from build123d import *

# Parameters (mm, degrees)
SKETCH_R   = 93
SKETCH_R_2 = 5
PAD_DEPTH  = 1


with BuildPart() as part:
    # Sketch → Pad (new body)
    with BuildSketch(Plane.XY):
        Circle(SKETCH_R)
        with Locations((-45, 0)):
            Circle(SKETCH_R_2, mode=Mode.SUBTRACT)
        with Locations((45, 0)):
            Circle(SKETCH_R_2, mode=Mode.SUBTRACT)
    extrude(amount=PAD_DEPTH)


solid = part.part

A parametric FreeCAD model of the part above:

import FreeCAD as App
import Part
import Sketcher
from FreeCAD import Vector

doc = App.newDocument("Part")
body = doc.addObject("PartDesign::Body", "Body")

sketch1 = doc.addObject("Sketcher::SketchObject", "Sketch")
body.addObject(sketch1)
sketch1.AttachmentSupport = (doc.XY_Plane, [""])
sketch1.MapMode = "FlatFace"
sketch1.addGeometry(Part.Circle(Vector(0, 0, 0), Vector(0, 0, 1), 93), False)
sketch1.addGeometry(Part.Circle(Vector(-45, 0, 0), Vector(0, 0, 1), 5), False)
sketch1.addGeometry(Part.Circle(Vector(45, 0, 0), Vector(0, 0, 1), 5), False)
sketch1.addConstraint(Sketcher.Constraint("Coincident", 0, 3, -1, 1))
sketch1.addConstraint(Sketcher.Constraint("Equal", 1, 2))
sketch1.addConstraint(Sketcher.Constraint("Symmetric", 1, 3, 2, 3, -1, 1))
sketch1.addConstraint(Sketcher.Constraint("PointOnObject", 1, 3, -1))
sketch1.addConstraint(Sketcher.Constraint("Diameter", 0, 186.0))
sketch1.addConstraint(Sketcher.Constraint("Diameter", 1, 10.0))
sketch1.addConstraint(Sketcher.Constraint("DistanceX", 1, 3, -1, 1, 45.0))
pad1 = doc.addObject("PartDesign::Pad", "Pad")
body.addObject(pad1)
pad1.Profile = sketch1
pad1.Length = 1

doc.recompute()
